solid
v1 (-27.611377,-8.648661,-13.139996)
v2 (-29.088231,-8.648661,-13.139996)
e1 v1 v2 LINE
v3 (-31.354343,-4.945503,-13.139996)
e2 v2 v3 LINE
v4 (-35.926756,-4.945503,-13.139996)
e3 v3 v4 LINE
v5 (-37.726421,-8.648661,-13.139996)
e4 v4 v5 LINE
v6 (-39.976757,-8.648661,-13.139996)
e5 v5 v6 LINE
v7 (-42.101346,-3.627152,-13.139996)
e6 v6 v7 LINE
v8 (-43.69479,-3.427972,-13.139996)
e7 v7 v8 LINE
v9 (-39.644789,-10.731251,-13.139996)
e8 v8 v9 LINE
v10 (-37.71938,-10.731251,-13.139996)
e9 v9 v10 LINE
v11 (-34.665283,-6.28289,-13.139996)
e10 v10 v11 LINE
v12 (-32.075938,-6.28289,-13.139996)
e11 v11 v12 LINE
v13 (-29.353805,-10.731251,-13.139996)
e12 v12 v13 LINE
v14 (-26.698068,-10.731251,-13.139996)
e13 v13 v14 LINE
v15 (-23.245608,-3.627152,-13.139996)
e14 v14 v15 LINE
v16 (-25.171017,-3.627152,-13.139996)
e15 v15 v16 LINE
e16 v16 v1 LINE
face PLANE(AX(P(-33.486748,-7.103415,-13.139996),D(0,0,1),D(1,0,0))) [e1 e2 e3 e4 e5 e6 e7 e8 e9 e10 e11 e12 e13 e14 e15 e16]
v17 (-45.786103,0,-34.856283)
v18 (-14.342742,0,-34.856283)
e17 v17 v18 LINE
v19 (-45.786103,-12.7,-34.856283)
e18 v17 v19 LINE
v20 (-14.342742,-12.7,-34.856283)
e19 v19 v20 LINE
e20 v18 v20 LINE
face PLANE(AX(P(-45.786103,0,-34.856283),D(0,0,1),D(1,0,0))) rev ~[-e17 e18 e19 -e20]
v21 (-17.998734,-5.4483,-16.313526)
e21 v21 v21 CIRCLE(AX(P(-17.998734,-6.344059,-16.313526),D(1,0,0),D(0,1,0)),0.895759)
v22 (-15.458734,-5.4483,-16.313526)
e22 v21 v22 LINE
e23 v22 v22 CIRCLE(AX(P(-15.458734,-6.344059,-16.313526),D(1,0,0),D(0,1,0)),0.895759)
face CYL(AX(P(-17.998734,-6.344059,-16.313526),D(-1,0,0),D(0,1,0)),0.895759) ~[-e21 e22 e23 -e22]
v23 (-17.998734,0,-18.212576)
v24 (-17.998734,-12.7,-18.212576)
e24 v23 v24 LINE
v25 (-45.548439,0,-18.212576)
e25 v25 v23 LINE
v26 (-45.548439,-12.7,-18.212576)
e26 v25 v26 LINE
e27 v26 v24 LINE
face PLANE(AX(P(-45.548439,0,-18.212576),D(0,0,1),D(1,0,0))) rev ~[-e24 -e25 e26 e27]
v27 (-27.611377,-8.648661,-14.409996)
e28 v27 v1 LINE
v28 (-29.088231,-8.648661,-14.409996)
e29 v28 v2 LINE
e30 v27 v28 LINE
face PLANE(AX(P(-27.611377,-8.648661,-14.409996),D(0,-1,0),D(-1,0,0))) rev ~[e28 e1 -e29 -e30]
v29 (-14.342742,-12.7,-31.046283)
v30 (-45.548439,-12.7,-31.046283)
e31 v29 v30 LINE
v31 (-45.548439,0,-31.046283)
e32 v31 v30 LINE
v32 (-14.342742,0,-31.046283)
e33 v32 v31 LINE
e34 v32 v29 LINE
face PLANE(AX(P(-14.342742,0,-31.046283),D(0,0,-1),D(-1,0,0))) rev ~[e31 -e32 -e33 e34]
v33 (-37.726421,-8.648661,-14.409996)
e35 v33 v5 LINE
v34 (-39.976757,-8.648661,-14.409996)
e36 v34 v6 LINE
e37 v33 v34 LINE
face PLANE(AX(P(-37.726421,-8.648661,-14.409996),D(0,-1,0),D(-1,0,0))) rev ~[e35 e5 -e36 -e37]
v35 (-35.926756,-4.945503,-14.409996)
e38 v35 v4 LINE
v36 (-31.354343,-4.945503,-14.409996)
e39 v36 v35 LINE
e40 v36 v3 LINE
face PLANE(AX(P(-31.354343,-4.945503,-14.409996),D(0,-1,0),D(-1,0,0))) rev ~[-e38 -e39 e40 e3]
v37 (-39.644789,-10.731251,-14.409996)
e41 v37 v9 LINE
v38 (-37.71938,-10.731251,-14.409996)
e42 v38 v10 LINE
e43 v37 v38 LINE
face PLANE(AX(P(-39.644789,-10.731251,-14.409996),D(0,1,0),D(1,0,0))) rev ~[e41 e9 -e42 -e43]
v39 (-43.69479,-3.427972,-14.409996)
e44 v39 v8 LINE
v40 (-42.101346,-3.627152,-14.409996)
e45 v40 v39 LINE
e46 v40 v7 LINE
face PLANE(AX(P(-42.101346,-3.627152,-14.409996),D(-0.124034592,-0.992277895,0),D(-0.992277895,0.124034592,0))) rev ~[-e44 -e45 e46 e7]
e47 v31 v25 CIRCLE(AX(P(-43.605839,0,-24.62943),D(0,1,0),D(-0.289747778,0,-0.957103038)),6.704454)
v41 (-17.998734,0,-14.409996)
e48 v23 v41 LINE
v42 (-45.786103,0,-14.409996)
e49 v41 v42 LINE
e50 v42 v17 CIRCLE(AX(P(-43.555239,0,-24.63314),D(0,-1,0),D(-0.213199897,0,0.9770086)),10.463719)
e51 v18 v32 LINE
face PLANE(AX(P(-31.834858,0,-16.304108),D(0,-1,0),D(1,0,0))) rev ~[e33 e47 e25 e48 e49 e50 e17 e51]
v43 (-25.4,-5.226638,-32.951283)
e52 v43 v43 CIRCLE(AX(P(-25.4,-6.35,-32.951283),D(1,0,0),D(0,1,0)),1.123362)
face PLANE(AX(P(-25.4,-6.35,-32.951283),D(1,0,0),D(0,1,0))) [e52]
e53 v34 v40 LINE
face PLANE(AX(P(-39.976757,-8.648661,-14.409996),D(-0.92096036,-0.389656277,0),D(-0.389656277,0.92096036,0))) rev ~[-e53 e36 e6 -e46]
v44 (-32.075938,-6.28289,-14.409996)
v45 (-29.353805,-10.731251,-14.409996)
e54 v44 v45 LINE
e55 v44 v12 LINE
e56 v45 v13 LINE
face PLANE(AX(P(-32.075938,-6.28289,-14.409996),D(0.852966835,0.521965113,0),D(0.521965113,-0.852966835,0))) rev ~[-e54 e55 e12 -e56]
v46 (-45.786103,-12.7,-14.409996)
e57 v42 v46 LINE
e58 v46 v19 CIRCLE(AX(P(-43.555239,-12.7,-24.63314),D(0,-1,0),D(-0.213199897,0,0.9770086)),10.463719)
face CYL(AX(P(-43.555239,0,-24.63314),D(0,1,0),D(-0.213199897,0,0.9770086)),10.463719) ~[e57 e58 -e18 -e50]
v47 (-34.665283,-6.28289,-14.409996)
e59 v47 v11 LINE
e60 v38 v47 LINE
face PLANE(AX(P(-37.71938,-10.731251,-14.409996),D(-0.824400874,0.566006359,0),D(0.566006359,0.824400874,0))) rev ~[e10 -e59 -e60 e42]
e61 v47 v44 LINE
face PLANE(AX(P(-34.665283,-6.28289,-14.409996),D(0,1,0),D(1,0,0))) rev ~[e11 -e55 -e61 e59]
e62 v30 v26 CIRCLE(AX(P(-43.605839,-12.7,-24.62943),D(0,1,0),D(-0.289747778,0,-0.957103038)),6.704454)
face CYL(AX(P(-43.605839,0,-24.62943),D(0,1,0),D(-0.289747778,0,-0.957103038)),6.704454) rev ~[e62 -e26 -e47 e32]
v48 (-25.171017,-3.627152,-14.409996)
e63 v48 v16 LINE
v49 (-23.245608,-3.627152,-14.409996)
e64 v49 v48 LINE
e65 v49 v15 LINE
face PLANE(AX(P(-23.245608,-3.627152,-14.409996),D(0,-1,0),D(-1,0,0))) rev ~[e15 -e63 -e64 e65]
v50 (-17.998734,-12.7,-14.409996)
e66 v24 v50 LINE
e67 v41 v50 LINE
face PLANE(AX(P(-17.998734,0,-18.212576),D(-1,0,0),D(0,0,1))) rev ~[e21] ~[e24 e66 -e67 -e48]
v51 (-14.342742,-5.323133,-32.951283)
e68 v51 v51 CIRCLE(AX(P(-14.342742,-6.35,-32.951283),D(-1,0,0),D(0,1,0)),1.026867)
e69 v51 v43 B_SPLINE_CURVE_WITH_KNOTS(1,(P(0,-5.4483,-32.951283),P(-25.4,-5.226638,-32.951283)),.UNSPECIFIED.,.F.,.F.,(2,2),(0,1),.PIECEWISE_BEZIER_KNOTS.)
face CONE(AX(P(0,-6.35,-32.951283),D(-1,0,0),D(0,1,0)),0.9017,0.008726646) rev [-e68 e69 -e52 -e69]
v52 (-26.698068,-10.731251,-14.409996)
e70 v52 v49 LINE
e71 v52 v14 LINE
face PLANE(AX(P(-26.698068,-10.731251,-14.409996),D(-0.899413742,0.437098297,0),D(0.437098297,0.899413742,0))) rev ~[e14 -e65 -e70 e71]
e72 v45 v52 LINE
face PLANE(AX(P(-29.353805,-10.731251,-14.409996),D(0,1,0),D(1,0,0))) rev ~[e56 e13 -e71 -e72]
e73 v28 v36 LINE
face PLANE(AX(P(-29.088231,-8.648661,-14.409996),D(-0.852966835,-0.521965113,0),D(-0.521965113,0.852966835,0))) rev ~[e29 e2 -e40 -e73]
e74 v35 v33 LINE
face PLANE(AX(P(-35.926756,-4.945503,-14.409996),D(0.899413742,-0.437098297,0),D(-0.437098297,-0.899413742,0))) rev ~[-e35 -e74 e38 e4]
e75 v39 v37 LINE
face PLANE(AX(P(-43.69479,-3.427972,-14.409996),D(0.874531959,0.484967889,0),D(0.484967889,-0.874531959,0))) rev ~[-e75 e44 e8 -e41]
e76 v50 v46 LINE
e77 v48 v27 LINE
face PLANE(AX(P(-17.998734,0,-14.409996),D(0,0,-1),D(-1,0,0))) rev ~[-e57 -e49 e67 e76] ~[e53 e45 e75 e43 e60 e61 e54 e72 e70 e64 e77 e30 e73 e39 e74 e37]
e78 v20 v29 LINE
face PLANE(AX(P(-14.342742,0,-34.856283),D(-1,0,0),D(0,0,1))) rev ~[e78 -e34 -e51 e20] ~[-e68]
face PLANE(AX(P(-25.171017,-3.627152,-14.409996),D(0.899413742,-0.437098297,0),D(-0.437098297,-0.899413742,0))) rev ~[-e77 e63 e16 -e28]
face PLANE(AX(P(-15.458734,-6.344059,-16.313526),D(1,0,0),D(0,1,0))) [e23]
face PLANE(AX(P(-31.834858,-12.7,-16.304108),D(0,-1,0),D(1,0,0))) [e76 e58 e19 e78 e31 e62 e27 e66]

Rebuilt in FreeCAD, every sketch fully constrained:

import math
import FreeCAD as App
import Part
import Sketcher
from FreeCAD import Vector
Q = App.Units.Quantity


def add_polygon(sketch, points):
    """Adds a closed chain of lines whose ends are joined by coincident constraints."""
    first, n = sketch.GeometryCount, len(points)
    for a, b in zip(points, points[1:] + points[:1]):
        sketch.addGeometry(Part.LineSegment(App.Vector(*a, 0), App.Vector(*b, 0)), False)
    for i in range(n):
        sketch.addConstraint(Sketcher.Constraint("Coincident", first + i, 2, first + (i + 1) % n, 1))

doc = App.newDocument("Part")
body = doc.addObject("PartDesign::Body", "Body")

# Sketch on XZ plane
sketch1 = body.newObject("Sketcher::SketchObject", "Sketch")
sketch1.AttachmentSupport = (doc.getObject("XZ_Plane"), [""])
sketch1.MapMode = "FlatFace"
sketch1.addGeometry([
    Part.LineSegment(Vector(-45.5, -18.2, 0), Vector(-18, -18.2, 0)),  # 0
    Part.LineSegment(Vector(-18, -18.2, 0), Vector(-18, -14.4, 0)),  # 1
    Part.LineSegment(Vector(-18, -14.4, 0), Vector(-45.8, -14.4, 0)),  # 2
    Part.ArcOfCircle(Part.Circle(Vector(-43.6, -24.6, 0), Vector(0, 0, 1), 10.5), math.radians(102), math.radians(258)),  # 3
    Part.LineSegment(Vector(-45.8, -34.9, 0), Vector(-14.3, -34.9, 0)),  # 4
    Part.LineSegment(Vector(-14.3, -34.9, 0), Vector(-14.3, -31, 0)),  # 5
    Part.LineSegment(Vector(-14.3, -31, 0), Vector(-45.5, -31, 0)),  # 6
    Part.ArcOfCircle(Part.Circle(Vector(-43.6, -24.6, 0), Vector(0, 0, 1), 6.7), math.radians(107), math.radians(253)),  # 7
], False)
sketch1.addConstraint([
    Sketcher.Constraint("Coincident", 0, 2, 1, 1),
    Sketcher.Constraint("Coincident", 1, 2, 2, 1),
    Sketcher.Constraint("Coincident", 2, 2, 3, 1),
    Sketcher.Constraint("Coincident", 3, 2, 4, 1),
    Sketcher.Constraint("Coincident", 4, 2, 5, 1),
    Sketcher.Constraint("Coincident", 5, 2, 6, 1),
    Sketcher.Constraint("Coincident", 6, 2, 7, 2),
    Sketcher.Constraint("Coincident", 7, 1, 0, 1),
    Sketcher.Constraint("Horizontal", 0),
    Sketcher.Constraint("Vertical", 1),
    Sketcher.Constraint("Horizontal", 2),
    Sketcher.Constraint("Horizontal", 4),
    Sketcher.Constraint("Vertical", 5),
    Sketcher.Constraint("Horizontal", 6),
    Sketcher.Constraint("Vertical", 2, 2, 3, 2),
    Sketcher.Constraint("Vertical", 6, 2, 7, 1),
    Sketcher.Constraint("DistanceY", 5, 1, 5, 2, Q("0.15 in")),
    Sketcher.Constraint("Radius", 3, 10.463719),
    Sketcher.Constraint("Radius", 7, 6.704454),
    Sketcher.Constraint("DistanceX", 2, 2, 2, 1, 27.787369),
    Sketcher.Constraint("DistanceX", 4, 1, 4, 2, 31.443361),
    Sketcher.Constraint("DistanceY", 1, 1, 1, 2, 3.80258),
    Sketcher.Constraint("DistanceX", 7, 3, 3, 3, 0.050599),
    Sketcher.Constraint("DistanceX", 6, 2, 7, 3, 1.942601),
    Sketcher.Constraint("DistanceX", 3, 3, -1, 1, 43.555239),
    Sketcher.Constraint("DistanceY", 3, 3, -1, 1, 24.63314),
])
pad1 = body.newObject("PartDesign::Pad", "Pad")
pad1.Profile = sketch1
pad1.Length = Q("0.5 in")

# Sketch on YZ plane
sketch2 = body.newObject("Sketcher::SketchObject", "Sketch001")
sketch2.AttachmentSupport = (doc.getObject("YZ_Plane"), [""])
sketch2.MapMode = "FlatFace"
sketch2.AttachmentOffset = App.Placement(Vector(0, 0, -17.998734), App.Rotation())
sketch2.addGeometry(Part.Circle(Vector(-6.3, -16.3, 0), Vector(0, 0, 1), 0.9), False)
sketch2.addConstraint([
    Sketcher.Constraint("Diameter", 0, 1.791519),
    Sketcher.Constraint("DistanceX", 0, 3, -1, 1, 6.344059),
    Sketcher.Constraint("DistanceY", 0, 3, -1, 1, 16.313526),
])
pad2 = body.newObject("PartDesign::Pad", "Pad001")
pad2.Profile = sketch2
pad2.Length = Q("0.1 in")

# Sketch on YZ plane
sketch3 = body.newObject("Sketcher::SketchObject", "Sketch002")
sketch3.AttachmentSupport = (doc.getObject("YZ_Plane"), [""])
sketch3.MapMode = "FlatFace"
sketch3.addGeometry(Part.Circle(Vector(-6.3, -33, 0), Vector(0, 0, 1), 0.9), False)
sketch3.addConstraint([
    Sketcher.Constraint("Diameter", 0, Q("0.071 in")),
    Sketcher.Constraint("DistanceX", 0, 3, -1, 1, Q("0.25 in")),
    Sketcher.Constraint("DistanceY", 0, 3, -1, 1, 32.951283),
])
pocket1 = body.newObject("PartDesign::Pocket", "Pocket")
pocket1.Profile = sketch3
pocket1.Length = Q("1 in")
pocket1.TaperAngle = 0.5

# Sketch on XY plane
sketch4 = body.newObject("Sketcher::SketchObject", "Sketch003")
sketch4.AttachmentSupport = (doc.getObject("XY_Plane"), [""])
sketch4.MapMode = "FlatFace"
sketch4.AttachmentOffset = App.Placement(Vector(0, 0, -14.409996), App.Rotation())
add_polygon(sketch4, [(-42.1, -3.6), (-43.7, -3.4), (-39.6, -10.7), (-37.7, -10.7), (-34.7, -6.3), (-32.1, -6.3), (-29.4, -10.7), (-26.7, -10.7), (-23.2, -3.6), (-25.2, -3.6), (-27.6, -8.6), (-29.1, -8.6), (-31.4, -4.9), (-35.9, -4.9), (-37.7, -8.6), (-40, -8.6)])  # lines 0-15
sketch4.addConstraint([
    Sketcher.Constraint("Horizontal", 2),
    Sketcher.Constraint("Horizontal", 4),
    Sketcher.Constraint("Horizontal", 6),
    Sketcher.Constraint("Horizontal", 8),
    Sketcher.Constraint("Horizontal", 10),
    Sketcher.Constraint("Horizontal", 12),
    Sketcher.Constraint("Horizontal", 14),
    Sketcher.Constraint("Parallel", 7, 9),
    Sketcher.Constraint("Parallel", 5, 11),
    Sketcher.Constraint("Parallel", 9, 13),
    Sketcher.Constraint("Horizontal", 2, 2, 5, 2),
    Sketcher.Constraint("Horizontal", 10, 2, 13, 2),
    Sketcher.Constraint("Horizontal", 8, 2, 15, 2),
    Sketcher.Constraint("Equal", 2, 8),
    Sketcher.Constraint("Distance", 13, 4.117301),
    Sketcher.Constraint("DistanceX", 2, 1, 2, 2, 1.925409),
    Sketcher.Constraint("DistanceX", 0, 2, 1, 2, 4.050002),
    Sketcher.Constraint("DistanceY", 6, 2, 7, 2, 7.104099),
    Sketcher.Constraint("DistanceX", 14, 2, 12, 2, 4.050002),
    Sketcher.Constraint("Distance", 1, 8.351071),
    Sketcher.Constraint("Distance", 3, 5.395871),
    Sketcher.Constraint("Distance", 9, 5.58309),
    Sketcher.Constraint("Distance", 15, 5.452469),
    Sketcher.Constraint("DistanceX", 4, 1, 4, 2, 2.589345),
    Sketcher.Constraint("DistanceX", 6, 1, 6, 2, 2.655737),
    Sketcher.Constraint("DistanceX", 10, 2, 10, 1, 1.476854),
    Sketcher.Constraint("DistanceX", 12, 2, 12, 1, 4.572412),
    Sketcher.Constraint("DistanceX", 14, 2, 14, 1, 2.250336),
    Sketcher.Constraint("DistanceX", 0, 2, -1, 1, 43.69479),
    Sketcher.Constraint("DistanceY", 1, 2, -1, 1, 10.731251),
    Sketcher.Constraint("DistanceY", 3, 2, -1, 1, 6.28289),
    Sketcher.Constraint("DistanceX", 7, 2, -1, 1, 23.245608),
])
pad3 = body.newObject("PartDesign::Pad", "Pad002")
pad3.Profile = sketch4
pad3.Length = Q("0.05 in")

doc.recompute()
